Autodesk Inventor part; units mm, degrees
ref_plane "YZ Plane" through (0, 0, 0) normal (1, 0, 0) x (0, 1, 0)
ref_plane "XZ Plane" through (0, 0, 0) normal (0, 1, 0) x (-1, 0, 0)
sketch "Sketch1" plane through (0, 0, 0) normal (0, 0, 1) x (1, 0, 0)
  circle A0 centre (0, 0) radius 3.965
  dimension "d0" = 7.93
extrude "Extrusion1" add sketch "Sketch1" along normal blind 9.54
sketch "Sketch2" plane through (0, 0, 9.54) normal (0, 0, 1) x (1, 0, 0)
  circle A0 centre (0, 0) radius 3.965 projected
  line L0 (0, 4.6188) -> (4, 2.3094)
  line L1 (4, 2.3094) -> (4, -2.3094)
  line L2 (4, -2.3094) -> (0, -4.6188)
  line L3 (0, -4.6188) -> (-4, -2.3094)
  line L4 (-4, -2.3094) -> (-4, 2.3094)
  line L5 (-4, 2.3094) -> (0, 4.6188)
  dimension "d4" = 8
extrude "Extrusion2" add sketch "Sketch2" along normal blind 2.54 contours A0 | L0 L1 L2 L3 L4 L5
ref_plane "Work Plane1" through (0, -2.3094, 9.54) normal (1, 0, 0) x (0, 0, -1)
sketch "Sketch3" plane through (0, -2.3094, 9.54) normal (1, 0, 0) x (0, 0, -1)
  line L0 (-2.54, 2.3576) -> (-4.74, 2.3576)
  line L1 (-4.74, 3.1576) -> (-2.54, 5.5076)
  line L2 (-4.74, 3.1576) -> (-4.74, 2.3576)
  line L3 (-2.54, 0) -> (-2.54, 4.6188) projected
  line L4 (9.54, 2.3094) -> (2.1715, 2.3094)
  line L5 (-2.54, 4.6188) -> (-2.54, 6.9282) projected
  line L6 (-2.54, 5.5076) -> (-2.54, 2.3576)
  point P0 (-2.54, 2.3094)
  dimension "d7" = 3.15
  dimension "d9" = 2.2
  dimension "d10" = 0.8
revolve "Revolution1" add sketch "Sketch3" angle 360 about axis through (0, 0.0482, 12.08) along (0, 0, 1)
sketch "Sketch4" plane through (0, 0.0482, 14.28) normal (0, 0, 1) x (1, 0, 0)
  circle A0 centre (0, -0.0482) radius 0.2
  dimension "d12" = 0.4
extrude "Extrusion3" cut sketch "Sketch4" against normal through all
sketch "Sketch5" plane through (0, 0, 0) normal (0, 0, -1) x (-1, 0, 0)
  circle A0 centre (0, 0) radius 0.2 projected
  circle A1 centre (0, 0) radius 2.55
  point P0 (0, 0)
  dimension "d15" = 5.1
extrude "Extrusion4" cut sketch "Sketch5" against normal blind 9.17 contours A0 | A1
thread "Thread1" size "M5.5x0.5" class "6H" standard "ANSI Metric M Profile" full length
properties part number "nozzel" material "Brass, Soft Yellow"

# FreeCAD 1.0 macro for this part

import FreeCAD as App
import Part
import Sketcher

V = App.Vector
Q = App.Units.Quantity

doc = App.newDocument("Part")
params = doc.addObject("Spreadsheet::Sheet", "Params")
for row, (alias, value) in enumerate([
    ("sketch1_diameter", "7.93 mm"),
    ("pad1_length", "9.54 mm"),
    ("pad2_length", "2.54 mm"),
    ("sketch3_width", "0.8 mm"),
    ("sketch3_height", "2.2 mm"),
    ("sketch3_width2", "3.15 mm"),
    ("revolution_angle", "360 deg"),
    ("sketch4_diameter", "0.4 mm"),
    ("sketch5_diameter", "5.1 mm"),
    ("pocket2_length", "9.17 mm"),
], start=1):
    params.set(f"A{row}", alias)
    params.set(f"B{row}", "=" + value)
    params.setAlias(f"B{row}", alias)

body = doc.addObject("PartDesign::Body", "Body")

# Sketch on XY plane
sketch1 = doc.addObject("Sketcher::SketchObject", "Sketch")
body.addObject(sketch1)
sketch1.AttachmentSupport = (doc.XY_Plane, [""])
sketch1.MapMode = "FlatFace"
sketch1.addGeometry(Part.Circle(V(0, 0, 0), V(0, 0, 1), 4), False)
sketch1.addConstraint(Sketcher.Constraint("Coincident", 0, 3, -1, 1))
sketch1.addConstraint(Sketcher.Constraint("Diameter", 0, 7.93))
sketch1.setExpression("Constraints[1]", "Params.sketch1_diameter")
pad1 = doc.addObject("PartDesign::Pad", "Pad")
body.addObject(pad1)
pad1.Profile = sketch1
pad1.setExpression("Length", "Params.pad1_length")

# Sketch on XY plane
sketch2 = doc.addObject("Sketcher::SketchObject", "Sketch001")
body.addObject(sketch2)
sketch2.AttachmentSupport = (doc.XY_Plane, [""])
sketch2.MapMode = "FlatFace"
sketch2.AttachmentOffset = App.Placement(V(0, 0, 9.54), App.Rotation())
sketch2.addGeometry(Part.LineSegment(V(4, 2.3, 0), V(0, 4.6, 0)), False)
sketch2.addGeometry(Part.LineSegment(V(0, 4.6, 0), V(-4, 2.3, 0)), False)
sketch2.addGeometry(Part.LineSegment(V(-4, 2.3, 0), V(-4, -2.3, 0)), False)
sketch2.addGeometry(Part.LineSegment(V(-4, -2.3, 0), V(0, -4.6, 0)), False)
sketch2.addGeometry(Part.LineSegment(V(0, -4.6, 0), V(4, -2.3, 0)), False)
sketch2.addGeometry(Part.LineSegment(V(4, -2.3, 0), V(4, 2.3, 0)), False)
sketch2.addConstraint(Sketcher.Constraint("Coincident", 0, 2, 1, 1))
sketch2.addConstraint(Sketcher.Constraint("Coincident", 1, 2, 2, 1))
sketch2.addConstraint(Sketcher.Constraint("Coincident", 2, 2, 3, 1))
sketch2.addConstraint(Sketcher.Constraint("Coincident", 3, 2, 4, 1))
sketch2.addConstraint(Sketcher.Constraint("Coincident", 4, 2, 5, 1))
sketch2.addConstraint(Sketcher.Constraint("Coincident", 5, 2, 0, 1))
sketch2.addConstraint(Sketcher.Constraint("Vertical", 2))
sketch2.addConstraint(Sketcher.Constraint("Vertical", 5))
sketch2.addConstraint(Sketcher.Constraint("Symmetric", 0, 2, 3, 2, -1, 1))
sketch2.addConstraint(Sketcher.Constraint("Symmetric", 1, 2, 4, 2, -1, 1))
sketch2.addConstraint(Sketcher.Constraint("PointOnObject", 0, 2, -2))
sketch2.addConstraint(Sketcher.Constraint("Parallel", 0, 3))
sketch2.addConstraint(Sketcher.Constraint("Horizontal", 2, 2, 4, 2))
sketch2.addConstraint(Sketcher.Constraint("DistanceX", 2, 2, 4, 2, 8.0))
sketch2.addConstraint(Sketcher.Constraint("Angle", 0, Q("150 deg")))
sketch2.addConstraint(Sketcher.Constraint("DistanceY", 2, 2, 2, 1, 4.6188))
pad2 = doc.addObject("PartDesign::Pad", "Pad001")
body.addObject(pad2)
pad2.Profile = sketch2
pad2.setExpression("Length", "Params.pad2_length")

# Sketch on YZ plane
sketch3 = doc.addObject("Sketcher::SketchObject", "Sketch002")
body.addObject(sketch3)
sketch3.AttachmentSupport = (doc.YZ_Plane, [""])
sketch3.MapMode = "FlatFace"
sketch3.addGeometry(Part.LineSegment(V(0, 14.3, 0), V(0, 12.1, 0)), False)
sketch3.addGeometry(Part.LineSegment(V(0, 12.1, 0), V(3.2, 12.1, 0)), False)
sketch3.addGeometry(Part.LineSegment(V(3.2, 12.1, 0), V(0.8, 14.3, 0)), False)
sketch3.addGeometry(Part.LineSegment(V(0.8, 14.3, 0), V(0, 14.3, 0)), False)
sketch3.addGeometry(Part.LineSegment(V(0, 12.1, 0), V(0, 14.3, 0)), True)  # axis
sketch3.addConstraint(Sketcher.Constraint("Coincident", 0, 2, 1, 1))
sketch3.addConstraint(Sketcher.Constraint("Coincident", 1, 2, 2, 1))
sketch3.addConstraint(Sketcher.Constraint("Coincident", 2, 2, 3, 1))
sketch3.addConstraint(Sketcher.Constraint("Coincident", 3, 2, 0, 1))
sketch3.addConstraint(Sketcher.Constraint("Vertical", 0))
sketch3.addConstraint(Sketcher.Constraint("Horizontal", 1))
sketch3.addConstraint(Sketcher.Constraint("Horizontal", 3))
sketch3.addConstraint(Sketcher.Constraint("Vertical", 4))
sketch3.addConstraint(Sketcher.Constraint("Coincident", 4, 1, 0, 2))
sketch3.addConstraint(Sketcher.Constraint("Horizontal", 2, 2, 4, 2))
sketch3.addConstraint(Sketcher.Constraint("DistanceX", 3, 2, 3, 1, 0.8))
sketch3.addConstraint(Sketcher.Constraint("DistanceY", 0, 2, 0, 1, 2.2))
sketch3.addConstraint(Sketcher.Constraint("DistanceX", 1, 1, 1, 2, 3.15))
sketch3.addConstraint(Sketcher.Constraint("DistanceY", -1, 1, 0, 2, 12.08))
sketch3.addConstraint(Sketcher.Constraint("DistanceX", -1, 1, 0, 2, 0.0482))
sketch3.setExpression("Constraints[10]", "Params.sketch3_width")
sketch3.setExpression("Constraints[11]", "Params.sketch3_height")
sketch3.setExpression("Constraints[12]", "Params.sketch3_width2")
revolution = doc.addObject("PartDesign::Revolution", "Revolution")
body.addObject(revolution)
revolution.Profile = sketch3
revolution.ReferenceAxis = (sketch3, ["Axis0"])
revolution.setExpression("Angle", "Params.revolution_angle")

# Sketch on XY plane
sketch4 = doc.addObject("Sketcher::SketchObject", "Sketch003")
body.addObject(sketch4)
sketch4.AttachmentSupport = (doc.XY_Plane, [""])
sketch4.MapMode = "FlatFace"
sketch4.AttachmentOffset = App.Placement(V(0, 0, 14.28), App.Rotation())
sketch4.addGeometry(Part.Circle(V(0, 0, 0), V(0, 0, 1), 0.2), False)
sketch4.addConstraint(Sketcher.Constraint("Coincident", 0, 3, -1, 1))
sketch4.addConstraint(Sketcher.Constraint("Diameter", 0, 0.4))
sketch4.setExpression("Constraints[1]", "Params.sketch4_diameter")
pocket1 = doc.addObject("PartDesign::Pocket", "Pocket")
body.addObject(pocket1)
pocket1.Profile = sketch4
pocket1.Type = "ThroughAll"

# Sketch on XY plane
sketch5 = doc.addObject("Sketcher::SketchObject", "Sketch004")
body.addObject(sketch5)
sketch5.AttachmentSupport = (doc.XY_Plane, [""])
sketch5.MapMode = "FlatFace"
sketch5.addGeometry(Part.Circle(V(0, 0, 0), V(0, 0, 1), 2.5), False)
sketch5.addConstraint(Sketcher.Constraint("Coincident", 0, 3, -1, 1))
sketch5.addConstraint(Sketcher.Constraint("Diameter", 0, 5.1))
sketch5.setExpression("Constraints[1]", "Params.sketch5_diameter")
pocket2 = doc.addObject("PartDesign::Pocket", "Pocket001")
body.addObject(pocket2)
pocket2.Profile = sketch5
pocket2.setExpression("Length", "Params.pocket2_length")
pocket2.Reversed = True

doc.recompute()
